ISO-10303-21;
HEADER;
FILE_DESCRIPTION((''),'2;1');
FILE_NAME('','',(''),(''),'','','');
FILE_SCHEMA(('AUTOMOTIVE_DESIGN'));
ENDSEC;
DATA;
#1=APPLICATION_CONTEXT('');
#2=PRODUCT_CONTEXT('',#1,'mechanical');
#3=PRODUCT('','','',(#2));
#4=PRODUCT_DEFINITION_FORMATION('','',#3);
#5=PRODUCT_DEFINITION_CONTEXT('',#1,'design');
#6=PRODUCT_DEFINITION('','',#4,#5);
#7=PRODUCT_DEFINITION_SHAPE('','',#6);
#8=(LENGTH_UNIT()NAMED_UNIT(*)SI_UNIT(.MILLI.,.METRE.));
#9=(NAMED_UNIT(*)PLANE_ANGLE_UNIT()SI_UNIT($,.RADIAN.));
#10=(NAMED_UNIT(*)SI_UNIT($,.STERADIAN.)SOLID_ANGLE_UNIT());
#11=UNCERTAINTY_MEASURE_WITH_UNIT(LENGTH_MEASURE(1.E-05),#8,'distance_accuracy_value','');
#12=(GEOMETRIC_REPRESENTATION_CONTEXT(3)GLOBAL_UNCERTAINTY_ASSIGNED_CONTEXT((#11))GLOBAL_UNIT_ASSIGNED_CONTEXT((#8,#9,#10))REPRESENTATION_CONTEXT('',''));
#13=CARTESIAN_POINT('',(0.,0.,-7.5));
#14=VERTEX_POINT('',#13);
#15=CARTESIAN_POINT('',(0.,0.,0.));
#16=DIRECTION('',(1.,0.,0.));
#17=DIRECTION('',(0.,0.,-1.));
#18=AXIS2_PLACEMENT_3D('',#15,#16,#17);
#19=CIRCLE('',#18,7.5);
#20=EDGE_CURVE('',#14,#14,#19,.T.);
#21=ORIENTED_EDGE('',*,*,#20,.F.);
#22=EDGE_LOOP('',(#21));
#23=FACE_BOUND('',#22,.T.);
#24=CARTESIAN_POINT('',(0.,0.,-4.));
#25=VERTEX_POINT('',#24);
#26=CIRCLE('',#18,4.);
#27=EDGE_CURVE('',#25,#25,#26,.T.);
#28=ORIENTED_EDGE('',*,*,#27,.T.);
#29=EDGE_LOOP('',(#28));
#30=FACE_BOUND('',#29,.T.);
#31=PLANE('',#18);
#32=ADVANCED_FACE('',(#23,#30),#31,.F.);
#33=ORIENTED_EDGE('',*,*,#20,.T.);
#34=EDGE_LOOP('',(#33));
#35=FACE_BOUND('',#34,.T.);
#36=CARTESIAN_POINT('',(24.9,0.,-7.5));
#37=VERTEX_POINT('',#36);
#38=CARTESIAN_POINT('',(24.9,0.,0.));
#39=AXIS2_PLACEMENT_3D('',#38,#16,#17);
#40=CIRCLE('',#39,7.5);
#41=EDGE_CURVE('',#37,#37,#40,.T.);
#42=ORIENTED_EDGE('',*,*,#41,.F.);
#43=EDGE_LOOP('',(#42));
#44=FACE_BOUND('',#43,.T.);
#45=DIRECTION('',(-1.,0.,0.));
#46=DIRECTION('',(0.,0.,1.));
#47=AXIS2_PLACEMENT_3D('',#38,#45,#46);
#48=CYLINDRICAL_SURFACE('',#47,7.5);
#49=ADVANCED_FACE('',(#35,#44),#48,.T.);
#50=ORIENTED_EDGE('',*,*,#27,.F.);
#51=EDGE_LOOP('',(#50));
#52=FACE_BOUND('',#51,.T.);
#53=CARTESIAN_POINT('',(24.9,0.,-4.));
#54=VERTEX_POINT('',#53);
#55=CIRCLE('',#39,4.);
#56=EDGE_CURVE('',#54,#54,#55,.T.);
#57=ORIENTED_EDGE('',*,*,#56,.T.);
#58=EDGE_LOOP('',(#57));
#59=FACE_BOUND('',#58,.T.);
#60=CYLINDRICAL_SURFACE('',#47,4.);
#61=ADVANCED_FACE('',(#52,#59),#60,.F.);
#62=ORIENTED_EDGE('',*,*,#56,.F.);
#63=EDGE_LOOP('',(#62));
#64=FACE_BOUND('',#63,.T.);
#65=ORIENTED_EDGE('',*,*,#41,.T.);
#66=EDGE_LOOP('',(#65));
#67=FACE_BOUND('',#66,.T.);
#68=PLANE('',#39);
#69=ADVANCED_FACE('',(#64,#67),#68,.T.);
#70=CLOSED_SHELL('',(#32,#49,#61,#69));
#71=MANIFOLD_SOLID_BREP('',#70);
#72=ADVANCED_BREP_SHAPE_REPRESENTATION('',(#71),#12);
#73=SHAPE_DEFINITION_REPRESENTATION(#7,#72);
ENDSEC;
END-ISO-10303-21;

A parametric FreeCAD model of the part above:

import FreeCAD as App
import Part
import Sketcher
Q = App.Units.Quantity

doc = App.newDocument("Part")
body = doc.addObject("PartDesign::Body", "Body")

# Sketch on YZ plane
sketch1 = body.newObject("Sketcher::SketchObject", "Sketch")
sketch1.AttachmentSupport = (doc.getObject("YZ_Plane"), [""])
sketch1.MapMode = "FlatFace"
sketch1.addGeometry(Part.Circle(App.Vector(0, 0, 0), App.Vector(0, 0, 1), 7.5), False)
sketch1.addGeometry(Part.Circle(App.Vector(0, 0, 0), App.Vector(0, 0, 1), 4), False)
sketch1.addConstraint(Sketcher.Constraint("Coincident", 0, 3, -1, 1))
sketch1.addConstraint(Sketcher.Constraint("Coincident", 1, 3, -1, 1))
sketch1.addConstraint(Sketcher.Constraint("Diameter", 0, Q("15 mm")))
sketch1.addConstraint(Sketcher.Constraint("Diameter", 1, Q("8 mm")))
pad1 = body.newObject("PartDesign::Pad", "Pad")
pad1.Profile = sketch1
pad1.Length = 24.9

doc.recompute()
